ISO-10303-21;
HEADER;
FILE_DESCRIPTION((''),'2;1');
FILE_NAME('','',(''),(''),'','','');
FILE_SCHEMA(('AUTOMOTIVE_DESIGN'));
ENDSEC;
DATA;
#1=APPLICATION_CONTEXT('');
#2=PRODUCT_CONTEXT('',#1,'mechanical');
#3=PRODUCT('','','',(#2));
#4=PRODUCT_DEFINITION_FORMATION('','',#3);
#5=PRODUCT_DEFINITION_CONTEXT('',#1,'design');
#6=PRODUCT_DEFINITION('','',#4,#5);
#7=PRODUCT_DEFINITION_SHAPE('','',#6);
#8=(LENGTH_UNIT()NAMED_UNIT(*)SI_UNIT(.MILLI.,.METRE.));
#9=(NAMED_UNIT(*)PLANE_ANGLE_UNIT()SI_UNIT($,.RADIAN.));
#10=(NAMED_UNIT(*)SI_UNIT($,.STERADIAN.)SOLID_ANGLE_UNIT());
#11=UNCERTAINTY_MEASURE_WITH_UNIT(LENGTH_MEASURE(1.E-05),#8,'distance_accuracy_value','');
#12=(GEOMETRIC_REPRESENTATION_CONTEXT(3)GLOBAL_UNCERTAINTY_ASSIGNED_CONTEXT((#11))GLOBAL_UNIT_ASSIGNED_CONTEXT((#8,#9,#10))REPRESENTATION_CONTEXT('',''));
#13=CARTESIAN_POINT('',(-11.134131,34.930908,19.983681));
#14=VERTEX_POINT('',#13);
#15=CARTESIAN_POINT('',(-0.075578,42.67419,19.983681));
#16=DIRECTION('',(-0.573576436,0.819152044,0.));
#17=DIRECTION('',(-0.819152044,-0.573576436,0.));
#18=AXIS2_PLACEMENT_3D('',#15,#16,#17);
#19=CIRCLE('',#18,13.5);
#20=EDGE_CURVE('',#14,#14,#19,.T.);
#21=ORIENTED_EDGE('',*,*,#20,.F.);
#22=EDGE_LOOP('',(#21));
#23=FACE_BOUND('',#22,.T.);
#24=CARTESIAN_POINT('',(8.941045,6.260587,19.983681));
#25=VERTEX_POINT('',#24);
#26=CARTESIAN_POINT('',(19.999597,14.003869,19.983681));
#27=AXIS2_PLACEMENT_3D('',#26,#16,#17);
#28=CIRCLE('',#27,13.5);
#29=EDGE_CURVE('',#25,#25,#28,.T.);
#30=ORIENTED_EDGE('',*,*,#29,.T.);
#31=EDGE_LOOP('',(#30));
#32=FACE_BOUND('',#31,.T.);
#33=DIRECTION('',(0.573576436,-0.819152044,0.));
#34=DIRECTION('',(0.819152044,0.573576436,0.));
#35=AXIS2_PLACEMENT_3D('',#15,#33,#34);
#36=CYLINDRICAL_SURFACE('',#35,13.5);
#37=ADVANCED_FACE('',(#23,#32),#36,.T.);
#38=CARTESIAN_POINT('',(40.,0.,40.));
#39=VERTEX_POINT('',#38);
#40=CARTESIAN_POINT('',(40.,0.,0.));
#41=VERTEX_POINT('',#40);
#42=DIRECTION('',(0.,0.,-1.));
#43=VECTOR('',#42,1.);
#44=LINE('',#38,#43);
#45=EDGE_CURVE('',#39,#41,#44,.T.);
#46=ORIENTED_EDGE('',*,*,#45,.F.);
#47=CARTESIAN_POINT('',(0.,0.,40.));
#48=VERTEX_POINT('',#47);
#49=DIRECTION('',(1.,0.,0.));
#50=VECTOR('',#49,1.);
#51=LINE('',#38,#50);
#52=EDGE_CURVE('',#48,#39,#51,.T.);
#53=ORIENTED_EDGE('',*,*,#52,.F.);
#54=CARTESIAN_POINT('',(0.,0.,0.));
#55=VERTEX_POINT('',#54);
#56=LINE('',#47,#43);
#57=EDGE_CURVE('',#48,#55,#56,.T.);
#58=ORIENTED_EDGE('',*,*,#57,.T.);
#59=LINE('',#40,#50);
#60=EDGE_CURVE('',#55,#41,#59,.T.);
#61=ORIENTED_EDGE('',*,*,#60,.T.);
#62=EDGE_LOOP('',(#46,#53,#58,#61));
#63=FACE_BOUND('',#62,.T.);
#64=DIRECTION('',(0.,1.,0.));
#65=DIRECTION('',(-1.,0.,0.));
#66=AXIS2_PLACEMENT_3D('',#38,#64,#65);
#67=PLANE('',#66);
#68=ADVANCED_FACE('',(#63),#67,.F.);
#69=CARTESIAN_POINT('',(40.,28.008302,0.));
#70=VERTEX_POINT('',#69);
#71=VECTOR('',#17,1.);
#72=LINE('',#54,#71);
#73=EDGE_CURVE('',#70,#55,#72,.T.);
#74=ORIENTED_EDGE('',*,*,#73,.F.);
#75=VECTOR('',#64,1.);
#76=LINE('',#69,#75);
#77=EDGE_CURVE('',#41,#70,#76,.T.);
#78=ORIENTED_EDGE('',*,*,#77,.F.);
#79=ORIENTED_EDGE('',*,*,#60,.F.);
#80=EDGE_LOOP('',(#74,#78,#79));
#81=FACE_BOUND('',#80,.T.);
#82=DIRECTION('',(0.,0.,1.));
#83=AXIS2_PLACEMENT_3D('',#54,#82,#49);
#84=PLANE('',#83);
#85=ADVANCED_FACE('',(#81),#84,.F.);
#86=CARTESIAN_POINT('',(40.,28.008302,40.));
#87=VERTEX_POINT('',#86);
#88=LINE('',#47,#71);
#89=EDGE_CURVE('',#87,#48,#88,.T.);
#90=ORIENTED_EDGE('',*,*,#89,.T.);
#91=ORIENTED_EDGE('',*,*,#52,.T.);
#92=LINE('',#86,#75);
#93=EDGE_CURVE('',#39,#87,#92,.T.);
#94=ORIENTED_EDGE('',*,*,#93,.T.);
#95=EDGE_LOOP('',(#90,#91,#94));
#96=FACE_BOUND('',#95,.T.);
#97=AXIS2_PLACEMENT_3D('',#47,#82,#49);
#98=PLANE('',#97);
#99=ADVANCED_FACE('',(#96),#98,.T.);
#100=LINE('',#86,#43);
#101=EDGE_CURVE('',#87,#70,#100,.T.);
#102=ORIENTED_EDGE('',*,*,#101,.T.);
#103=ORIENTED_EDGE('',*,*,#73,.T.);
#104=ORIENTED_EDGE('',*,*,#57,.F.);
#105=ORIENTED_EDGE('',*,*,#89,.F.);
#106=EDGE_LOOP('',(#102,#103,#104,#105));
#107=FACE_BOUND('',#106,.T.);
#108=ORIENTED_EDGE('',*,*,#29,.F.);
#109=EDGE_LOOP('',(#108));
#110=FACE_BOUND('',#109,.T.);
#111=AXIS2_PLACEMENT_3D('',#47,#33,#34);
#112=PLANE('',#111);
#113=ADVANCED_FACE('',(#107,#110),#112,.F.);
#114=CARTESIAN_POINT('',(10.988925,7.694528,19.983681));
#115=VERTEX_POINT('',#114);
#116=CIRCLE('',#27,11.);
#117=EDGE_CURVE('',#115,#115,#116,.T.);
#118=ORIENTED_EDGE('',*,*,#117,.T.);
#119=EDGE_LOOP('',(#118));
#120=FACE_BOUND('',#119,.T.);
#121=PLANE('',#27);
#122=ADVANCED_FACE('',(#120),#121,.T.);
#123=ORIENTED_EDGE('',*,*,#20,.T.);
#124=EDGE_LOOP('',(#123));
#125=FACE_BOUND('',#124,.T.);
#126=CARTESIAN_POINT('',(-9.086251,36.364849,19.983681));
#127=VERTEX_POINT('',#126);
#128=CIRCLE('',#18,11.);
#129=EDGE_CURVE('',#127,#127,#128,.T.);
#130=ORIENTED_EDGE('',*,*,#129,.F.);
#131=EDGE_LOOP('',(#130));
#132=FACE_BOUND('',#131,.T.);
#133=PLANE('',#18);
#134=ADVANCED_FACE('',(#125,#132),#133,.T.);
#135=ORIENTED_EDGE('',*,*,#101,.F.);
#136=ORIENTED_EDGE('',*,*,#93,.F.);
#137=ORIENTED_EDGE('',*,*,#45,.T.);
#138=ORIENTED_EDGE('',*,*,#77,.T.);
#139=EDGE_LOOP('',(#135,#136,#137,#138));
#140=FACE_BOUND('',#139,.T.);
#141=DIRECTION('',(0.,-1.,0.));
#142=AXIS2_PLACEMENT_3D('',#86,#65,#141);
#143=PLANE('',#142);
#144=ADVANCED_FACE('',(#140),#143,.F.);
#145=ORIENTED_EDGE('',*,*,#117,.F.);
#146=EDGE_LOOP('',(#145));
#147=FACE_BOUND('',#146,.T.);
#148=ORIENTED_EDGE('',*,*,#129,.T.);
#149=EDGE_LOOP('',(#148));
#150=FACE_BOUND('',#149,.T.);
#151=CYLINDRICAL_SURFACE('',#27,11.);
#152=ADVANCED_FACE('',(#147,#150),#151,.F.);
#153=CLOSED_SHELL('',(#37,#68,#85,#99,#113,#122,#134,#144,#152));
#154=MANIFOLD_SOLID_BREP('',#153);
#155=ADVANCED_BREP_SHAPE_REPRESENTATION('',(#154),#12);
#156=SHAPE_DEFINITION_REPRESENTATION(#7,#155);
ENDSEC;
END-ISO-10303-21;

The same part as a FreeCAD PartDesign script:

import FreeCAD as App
import Part
import Sketcher

V = App.Vector
Q = App.Units.Quantity


def add_polygon(sketch, points):
    """Adds a closed chain of lines whose ends are joined by coincident constraints."""
    first, n = sketch.GeometryCount, len(points)
    for a, b in zip(points, points[1:] + points[:1]):
        sketch.addGeometry(Part.LineSegment(App.Vector(*a, 0), App.Vector(*b, 0)), False)
    for i in range(n):
        sketch.addConstraint(Sketcher.Constraint("Coincident", first + i, 2, first + (i + 1) % n, 1))

doc = App.newDocument("Part")
body = doc.addObject("PartDesign::Body", "Body")

# Sketch on XY plane
sketch1 = doc.addObject("Sketcher::SketchObject", "Sketch")
body.addObject(sketch1)
sketch1.AttachmentSupport = (doc.XY_Plane, [""])
sketch1.MapMode = "FlatFace"
add_polygon(sketch1, [(40, 28), (0, 0), (40, 0)])  # lines 0-2
sketch1.addConstraint([
    Sketcher.Constraint("Horizontal", 1),
    Sketcher.Constraint("Vertical", 2),
    Sketcher.Constraint("Coincident", 0, 2, -1, 1),
    Sketcher.Constraint("DistanceX", 1, 1, 1, 2, Q("40 mm")),
    Sketcher.Constraint("Angle", 0, Q("-145 deg")),
])
pad1 = doc.addObject("PartDesign::Pad", "Pad")
body.addObject(pad1)
pad1.Profile = sketch1
pad1.Length = 40

# Sketch on an angled plane
sketch2 = doc.addObject("Sketcher::SketchObject", "Sketch001")
body.addObject(sketch2)
sketch2.Placement = App.Placement(V(0, 0, 0), App.Rotation(V(0.819152044, 0.573576436, 0), V(0, 0, -0.999999999), V(-0.573576436, 0.819152044, 0), "ZXY"))
sketch2.addGeometry(Part.Circle(V(24, -20, 0), V(0, 0, 1), 14), False)
sketch2.addConstraint([
    Sketcher.Constraint("Diameter", 0, Q("27 mm")),
    Sketcher.Constraint("DistanceX", -1, 1, 0, 3, Q("24.415 mm")),
    Sketcher.Constraint("DistanceY", 0, 3, -1, 1, Q("19.983681 mm")),
])
pad2 = doc.addObject("PartDesign::Pad", "Pad001")
body.addObject(pad2)
pad2.Profile = sketch2
pad2.Length = 35

# Sketch on an angled plane
sketch3 = doc.addObject("Sketcher::SketchObject", "Sketch002")
body.addObject(sketch3)
sketch3.Placement = App.Placement(V(-20.075175, 28.670322, 0), App.Rotation(V(0.819152044, 0.573576436, 0), V(0, 0, -0.999999999), V(-0.573576436, 0.819152044, 0), "ZXY"))
sketch3.addGeometry(Part.Circle(V(24, -20, 0), V(0, 0, 1), 11), False)
sketch3.addConstraint([
    Sketcher.Constraint("Diameter", 0, Q("22 mm")),
    Sketcher.Constraint("DistanceX", -1, 1, 0, 3, Q("24.415 mm")),
    Sketcher.Constraint("DistanceY", 0, 3, -1, 1, Q("19.983681 mm")),
])
pocket1 = doc.addObject("PartDesign::Pocket", "Pocket")
body.addObject(pocket1)
pocket1.Profile = sketch3
pocket1.Length = 35

doc.recompute()
